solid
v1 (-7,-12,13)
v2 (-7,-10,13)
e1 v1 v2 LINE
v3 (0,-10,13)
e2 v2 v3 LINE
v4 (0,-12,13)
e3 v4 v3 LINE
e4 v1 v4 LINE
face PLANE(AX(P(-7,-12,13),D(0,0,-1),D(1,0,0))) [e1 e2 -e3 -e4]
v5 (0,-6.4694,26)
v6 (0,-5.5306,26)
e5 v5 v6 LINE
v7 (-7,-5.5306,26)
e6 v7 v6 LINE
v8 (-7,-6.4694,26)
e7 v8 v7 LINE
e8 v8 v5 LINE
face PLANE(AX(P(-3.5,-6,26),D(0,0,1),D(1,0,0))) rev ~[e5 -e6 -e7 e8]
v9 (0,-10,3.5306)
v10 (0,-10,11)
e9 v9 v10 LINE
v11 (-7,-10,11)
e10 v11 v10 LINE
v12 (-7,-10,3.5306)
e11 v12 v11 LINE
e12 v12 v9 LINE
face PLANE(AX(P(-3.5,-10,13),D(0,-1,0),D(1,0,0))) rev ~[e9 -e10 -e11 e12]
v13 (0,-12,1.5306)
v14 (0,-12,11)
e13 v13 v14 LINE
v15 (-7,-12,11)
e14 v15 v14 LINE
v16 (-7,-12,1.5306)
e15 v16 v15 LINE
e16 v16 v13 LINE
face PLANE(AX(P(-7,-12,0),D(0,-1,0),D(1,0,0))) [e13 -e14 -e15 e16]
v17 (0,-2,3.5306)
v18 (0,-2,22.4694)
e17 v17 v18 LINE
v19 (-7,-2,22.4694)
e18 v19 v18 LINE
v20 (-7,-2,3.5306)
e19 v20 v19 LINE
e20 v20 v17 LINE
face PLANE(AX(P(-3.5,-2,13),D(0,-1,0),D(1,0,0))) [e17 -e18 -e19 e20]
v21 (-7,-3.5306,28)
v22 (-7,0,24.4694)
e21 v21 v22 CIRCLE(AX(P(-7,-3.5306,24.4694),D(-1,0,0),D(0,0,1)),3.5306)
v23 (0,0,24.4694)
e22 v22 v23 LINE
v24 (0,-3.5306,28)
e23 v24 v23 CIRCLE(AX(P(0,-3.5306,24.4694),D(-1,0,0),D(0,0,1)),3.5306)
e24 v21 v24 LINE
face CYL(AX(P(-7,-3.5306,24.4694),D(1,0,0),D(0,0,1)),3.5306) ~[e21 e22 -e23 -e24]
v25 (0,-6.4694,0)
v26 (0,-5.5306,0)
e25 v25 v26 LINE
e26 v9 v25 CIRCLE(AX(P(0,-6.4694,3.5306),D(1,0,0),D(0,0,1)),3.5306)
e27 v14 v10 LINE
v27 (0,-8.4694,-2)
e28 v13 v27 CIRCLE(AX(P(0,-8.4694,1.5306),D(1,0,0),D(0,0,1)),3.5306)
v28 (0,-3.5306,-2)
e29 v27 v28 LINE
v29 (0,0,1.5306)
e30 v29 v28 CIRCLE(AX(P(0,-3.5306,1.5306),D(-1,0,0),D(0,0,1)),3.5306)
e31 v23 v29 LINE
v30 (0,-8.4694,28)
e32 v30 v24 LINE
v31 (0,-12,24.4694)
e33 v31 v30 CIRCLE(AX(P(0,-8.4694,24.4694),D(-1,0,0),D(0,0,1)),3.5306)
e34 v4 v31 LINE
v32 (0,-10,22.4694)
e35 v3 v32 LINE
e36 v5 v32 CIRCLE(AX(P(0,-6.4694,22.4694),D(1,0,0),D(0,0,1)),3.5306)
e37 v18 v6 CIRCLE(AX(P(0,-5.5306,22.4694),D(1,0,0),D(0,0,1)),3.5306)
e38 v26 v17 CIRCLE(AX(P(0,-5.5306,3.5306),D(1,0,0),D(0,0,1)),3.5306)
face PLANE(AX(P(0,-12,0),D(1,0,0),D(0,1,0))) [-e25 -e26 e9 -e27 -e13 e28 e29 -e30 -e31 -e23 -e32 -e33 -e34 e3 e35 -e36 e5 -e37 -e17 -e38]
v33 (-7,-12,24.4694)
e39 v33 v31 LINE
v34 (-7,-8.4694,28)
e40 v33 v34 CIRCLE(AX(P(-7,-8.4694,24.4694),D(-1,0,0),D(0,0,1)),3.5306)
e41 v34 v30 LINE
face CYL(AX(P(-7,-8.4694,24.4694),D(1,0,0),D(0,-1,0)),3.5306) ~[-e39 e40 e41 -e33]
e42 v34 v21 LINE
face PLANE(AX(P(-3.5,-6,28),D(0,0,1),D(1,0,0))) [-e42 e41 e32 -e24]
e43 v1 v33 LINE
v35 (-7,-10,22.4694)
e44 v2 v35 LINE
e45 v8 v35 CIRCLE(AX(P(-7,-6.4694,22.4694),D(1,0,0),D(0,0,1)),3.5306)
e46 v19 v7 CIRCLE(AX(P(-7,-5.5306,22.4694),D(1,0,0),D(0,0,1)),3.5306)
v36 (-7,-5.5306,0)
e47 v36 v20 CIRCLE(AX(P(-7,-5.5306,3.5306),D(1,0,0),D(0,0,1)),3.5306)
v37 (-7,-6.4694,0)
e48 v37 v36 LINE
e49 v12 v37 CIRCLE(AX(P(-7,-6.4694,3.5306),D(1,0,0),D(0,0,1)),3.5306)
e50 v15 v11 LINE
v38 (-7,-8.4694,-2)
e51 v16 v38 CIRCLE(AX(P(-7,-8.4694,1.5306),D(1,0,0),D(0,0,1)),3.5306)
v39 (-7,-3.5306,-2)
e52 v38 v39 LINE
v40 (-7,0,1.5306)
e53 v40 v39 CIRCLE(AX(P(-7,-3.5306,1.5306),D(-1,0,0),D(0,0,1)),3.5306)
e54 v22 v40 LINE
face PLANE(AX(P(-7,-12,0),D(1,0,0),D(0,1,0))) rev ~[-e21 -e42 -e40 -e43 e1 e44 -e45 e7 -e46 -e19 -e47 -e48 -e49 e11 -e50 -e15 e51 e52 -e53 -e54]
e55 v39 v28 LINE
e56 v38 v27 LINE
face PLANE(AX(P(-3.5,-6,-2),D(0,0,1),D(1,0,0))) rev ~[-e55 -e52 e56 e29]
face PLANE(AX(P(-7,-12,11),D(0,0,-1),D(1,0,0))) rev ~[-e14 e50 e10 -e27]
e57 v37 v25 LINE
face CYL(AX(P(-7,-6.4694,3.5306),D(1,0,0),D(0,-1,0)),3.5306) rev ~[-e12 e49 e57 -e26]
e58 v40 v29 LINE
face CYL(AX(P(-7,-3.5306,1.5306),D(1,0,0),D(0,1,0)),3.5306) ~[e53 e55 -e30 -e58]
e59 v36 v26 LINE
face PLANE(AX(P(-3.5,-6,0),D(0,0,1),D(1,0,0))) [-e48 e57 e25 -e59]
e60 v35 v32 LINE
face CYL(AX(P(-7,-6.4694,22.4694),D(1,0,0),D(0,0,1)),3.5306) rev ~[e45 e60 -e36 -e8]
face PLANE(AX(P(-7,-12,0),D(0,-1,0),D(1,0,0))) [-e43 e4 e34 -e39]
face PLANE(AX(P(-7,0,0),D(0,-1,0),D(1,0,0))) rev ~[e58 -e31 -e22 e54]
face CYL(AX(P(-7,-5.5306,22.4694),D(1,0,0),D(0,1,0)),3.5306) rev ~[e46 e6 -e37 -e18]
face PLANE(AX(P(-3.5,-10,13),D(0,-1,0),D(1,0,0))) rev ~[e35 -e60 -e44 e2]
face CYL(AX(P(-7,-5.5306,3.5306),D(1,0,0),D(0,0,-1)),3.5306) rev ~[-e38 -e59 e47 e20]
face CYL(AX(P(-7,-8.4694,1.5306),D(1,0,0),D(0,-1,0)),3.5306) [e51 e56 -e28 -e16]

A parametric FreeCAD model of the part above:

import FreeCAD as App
import Part
import Sketcher

V = App.Vector


def edges_at(feature, points):
    """Names of the edges that pass closest to the given points."""
    edges = feature.Shape.Edges
    near = lambda p: min(range(len(edges)), key=lambda i: edges[i].distToShape(Part.Vertex(*p))[0])
    return sorted({f"Edge{near(p) + 1}" for p in points})

doc = App.newDocument("Part")
body = doc.addObject("PartDesign::Body", "Body")

# Sketch on XZ plane
sketch1 = body.newObject("Sketcher::SketchObject", "Sketch")
sketch1.AttachmentSupport = (doc.getObject("XZ_Plane"), [""])
sketch1.MapMode = "FlatFace"
sketch1.addGeometry(Part.LineSegment(V(-7, 26, 0), V(-7, 0, 0)), False)
sketch1.addGeometry(Part.LineSegment(V(-7, 0, 0), V(0, 0, 0)), False)
sketch1.addGeometry(Part.LineSegment(V(0, 0, 0), V(0, 26, 0)), False)
sketch1.addGeometry(Part.LineSegment(V(0, 26, 0), V(-7, 26, 0)), False)
sketch1.addConstraint(Sketcher.Constraint("Coincident", 0, 2, 1, 1))
sketch1.addConstraint(Sketcher.Constraint("Coincident", 1, 2, 2, 1))
sketch1.addConstraint(Sketcher.Constraint("Coincident", 2, 2, 3, 1))
sketch1.addConstraint(Sketcher.Constraint("Coincident", 3, 2, 0, 1))
sketch1.addConstraint(Sketcher.Constraint("Vertical", 0))
sketch1.addConstraint(Sketcher.Constraint("Horizontal", 1))
sketch1.addConstraint(Sketcher.Constraint("Vertical", 2))
sketch1.addConstraint(Sketcher.Constraint("Horizontal", 3))
sketch1.addConstraint(Sketcher.Constraint("Coincident", 1, 2, -1, 1))
sketch1.addConstraint(Sketcher.Constraint("DistanceX", 1, 1, 1, 2, 7.0))
sketch1.addConstraint(Sketcher.Constraint("DistanceY", 0, 2, 0, 1, 26.0))
pad1 = body.newObject("PartDesign::Pad", "Pad")
pad1.Profile = sketch1
pad1.Length = 2
body2 = doc.addObject("PartDesign::Body", "Body001")

# Sketch on XZ plane
sketch2 = body2.newObject("Sketcher::SketchObject", "Sketch001")
sketch2.AttachmentSupport = (doc.getObject("XZ_Plane001"), [""])
sketch2.MapMode = "FlatFace"
sketch2.AttachmentOffset = App.Placement(V(0, 0, 10), App.Rotation())
sketch2.addGeometry(Part.LineSegment(V(-7, 26, 0), V(-7, 0, 0)), False)
sketch2.addGeometry(Part.LineSegment(V(-7, 0, 0), V(0, 0, 0)), False)
sketch2.addGeometry(Part.LineSegment(V(0, 0, 0), V(0, 26, 0)), False)
sketch2.addGeometry(Part.LineSegment(V(0, 26, 0), V(-7, 26, 0)), False)
sketch2.addConstraint(Sketcher.Constraint("Coincident", 0, 2, 1, 1))
sketch2.addConstraint(Sketcher.Constraint("Coincident", 1, 2, 2, 1))
sketch2.addConstraint(Sketcher.Constraint("Coincident", 2, 2, 3, 1))
sketch2.addConstraint(Sketcher.Constraint("Coincident", 3, 2, 0, 1))
sketch2.addConstraint(Sketcher.Constraint("Vertical", 0))
sketch2.addConstraint(Sketcher.Constraint("Horizontal", 1))
sketch2.addConstraint(Sketcher.Constraint("Vertical", 2))
sketch2.addConstraint(Sketcher.Constraint("Horizontal", 3))
sketch2.addConstraint(Sketcher.Constraint("Coincident", 1, 2, -1, 1))
sketch2.addConstraint(Sketcher.Constraint("DistanceX", 1, 1, 1, 2, 7.0))
sketch2.addConstraint(Sketcher.Constraint("DistanceY", 0, 2, 0, 1, 26.0))
pad2 = body2.newObject("PartDesign::Pad", "Pad001")
pad2.Profile = sketch2
pad2.Length = 2
body3 = doc.addObject("PartDesign::Body", "Body002")

# Sketch on XY plane
sketch3 = body3.newObject("Sketcher::SketchObject", "Sketch002")
sketch3.AttachmentSupport = (doc.getObject("XY_Plane002"), [""])
sketch3.MapMode = "FlatFace"
sketch3.AttachmentOffset = App.Placement(V(0, 0, 26), App.Rotation())
sketch3.addGeometry(Part.LineSegment(V(-7, 0, 0), V(-7, -12, 0)), False)
sketch3.addGeometry(Part.LineSegment(V(-7, -12, 0), V(0, -12, 0)), False)
sketch3.addGeometry(Part.LineSegment(V(0, -12, 0), V(0, 0, 0)), False)
sketch3.addGeometry(Part.LineSegment(V(0, 0, 0), V(-7, 0, 0)), False)
sketch3.addConstraint(Sketcher.Constraint("Coincident", 0, 2, 1, 1))
sketch3.addConstraint(Sketcher.Constraint("Coincident", 1, 2, 2, 1))
sketch3.addConstraint(Sketcher.Constraint("Coincident", 2, 2, 3, 1))
sketch3.addConstraint(Sketcher.Constraint("Coincident", 3, 2, 0, 1))
sketch3.addConstraint(Sketcher.Constraint("Vertical", 0))
sketch3.addConstraint(Sketcher.Constraint("Horizontal", 1))
sketch3.addConstraint(Sketcher.Constraint("Vertical", 2))
sketch3.addConstraint(Sketcher.Constraint("Horizontal", 3))
sketch3.addConstraint(Sketcher.Constraint("Coincident", 2, 2, -1, 1))
sketch3.addConstraint(Sketcher.Constraint("DistanceX", 1, 1, 1, 2, 7.0))
sketch3.addConstraint(Sketcher.Constraint("DistanceY", 0, 2, 0, 1, 12.0))
pad3 = body3.newObject("PartDesign::Pad", "Pad002")
pad3.Profile = sketch3
pad3.Length = 2
body4 = doc.addObject("PartDesign::Body", "Body003")

# Sketch on XY plane
sketch4 = body4.newObject("Sketcher::SketchObject", "Sketch003")
sketch4.AttachmentSupport = (doc.getObject("XY_Plane003"), [""])
sketch4.MapMode = "FlatFace"
sketch4.addGeometry(Part.LineSegment(V(-7, 0, 0), V(-7, -12, 0)), False)
sketch4.addGeometry(Part.LineSegment(V(-7, -12, 0), V(0, -12, 0)), False)
sketch4.addGeometry(Part.LineSegment(V(0, -12, 0), V(0, 0, 0)), False)
sketch4.addGeometry(Part.LineSegment(V(0, 0, 0), V(-7, 0, 0)), False)
sketch4.addConstraint(Sketcher.Constraint("Coincident", 0, 2, 1, 1))
sketch4.addConstraint(Sketcher.Constraint("Coincident", 1, 2, 2, 1))
sketch4.addConstraint(Sketcher.Constraint("Coincident", 2, 2, 3, 1))
sketch4.addConstraint(Sketcher.Constraint("Coincident", 3, 2, 0, 1))
sketch4.addConstraint(Sketcher.Constraint("Vertical", 0))
sketch4.addConstraint(Sketcher.Constraint("Horizontal", 1))
sketch4.addConstraint(Sketcher.Constraint("Vertical", 2))
sketch4.addConstraint(Sketcher.Constraint("Horizontal", 3))
sketch4.addConstraint(Sketcher.Constraint("Coincident", 2, 2, -1, 1))
sketch4.addConstraint(Sketcher.Constraint("DistanceX", 1, 1, 1, 2, 7.0))
sketch4.addConstraint(Sketcher.Constraint("DistanceY", 0, 2, 0, 1, 12.0))
pad4 = body4.newObject("PartDesign::Pad", "Pad003")
pad4.Profile = sketch4
pad4.Length = 2
pad4.Reversed = True
body.AllowCompound = True
doc.recompute()

boolean = body.newObject("PartDesign::Boolean", "Boolean")
boolean.Type = "Fuse"
boolean.addObjects([body2])
doc.recompute()

boolean2 = body.newObject("PartDesign::Boolean", "Boolean001")
boolean2.Type = "Fuse"
boolean2.addObjects([body3])
doc.recompute()

boolean3 = body.newObject("PartDesign::Boolean", "Boolean002")
boolean3.Type = "Fuse"
boolean3.addObjects([body4])

# Sketch on XZ plane
sketch5 = body.newObject("Sketcher::SketchObject", "Sketch004")
sketch5.AttachmentSupport = (doc.getObject("XZ_Plane"), [""])
sketch5.MapMode = "FlatFace"
sketch5.AttachmentOffset = App.Placement(V(0, 0, 12), App.Rotation())
sketch5.addGeometry(Part.LineSegment(V(-7, 13, 0), V(-7, 11, 0)), False)
sketch5.addGeometry(Part.LineSegment(V(-7, 11, 0), V(0, 11, 0)), False)
sketch5.addGeometry(Part.LineSegment(V(0, 11, 0), V(0, 13, 0)), False)
sketch5.addGeometry(Part.LineSegment(V(0, 13, 0), V(-7, 13, 0)), False)
sketch5.addConstraint(Sketcher.Constraint("Coincident", 0, 2, 1, 1))
sketch5.addConstraint(Sketcher.Constraint("Coincident", 1, 2, 2, 1))
sketch5.addConstraint(Sketcher.Constraint("Coincident", 2, 2, 3, 1))
sketch5.addConstraint(Sketcher.Constraint("Coincident", 3, 2, 0, 1))
sketch5.addConstraint(Sketcher.Constraint("Vertical", 0))
sketch5.addConstraint(Sketcher.Constraint("Horizontal", 1))
sketch5.addConstraint(Sketcher.Constraint("Vertical", 2))
sketch5.addConstraint(Sketcher.Constraint("Horizontal", 3))
sketch5.addConstraint(Sketcher.Constraint("PointOnObject", 1, 2, -2))
sketch5.addConstraint(Sketcher.Constraint("DistanceX", 1, 1, 1, 2, 7.0))
sketch5.addConstraint(Sketcher.Constraint("DistanceY", 0, 2, 0, 1, 2.0))
sketch5.addConstraint(Sketcher.Constraint("DistanceY", -1, 1, 0, 2, 11.0))
pocket1 = body.newObject("PartDesign::Pocket", "Pocket")
pocket1.Profile = sketch5
pocket1.Length = 4
doc.recompute()

fillet = body.newObject("PartDesign::Fillet", "Fillet")
fillet.Base = (pocket1, edges_at(pocket1, [
    (-3.5, -12, 28),
    (-3.5, 0, 28),
    (-3.5, -12, -2),
    (-3.5, 0, -2),
    (-3.5, -2, 26),
    (-3.5, -2, 0),
    (-3.5, -10, 0),
    (-3.5, -10, 26),
]))
fillet.Radius = 3.5306

doc.recompute()
